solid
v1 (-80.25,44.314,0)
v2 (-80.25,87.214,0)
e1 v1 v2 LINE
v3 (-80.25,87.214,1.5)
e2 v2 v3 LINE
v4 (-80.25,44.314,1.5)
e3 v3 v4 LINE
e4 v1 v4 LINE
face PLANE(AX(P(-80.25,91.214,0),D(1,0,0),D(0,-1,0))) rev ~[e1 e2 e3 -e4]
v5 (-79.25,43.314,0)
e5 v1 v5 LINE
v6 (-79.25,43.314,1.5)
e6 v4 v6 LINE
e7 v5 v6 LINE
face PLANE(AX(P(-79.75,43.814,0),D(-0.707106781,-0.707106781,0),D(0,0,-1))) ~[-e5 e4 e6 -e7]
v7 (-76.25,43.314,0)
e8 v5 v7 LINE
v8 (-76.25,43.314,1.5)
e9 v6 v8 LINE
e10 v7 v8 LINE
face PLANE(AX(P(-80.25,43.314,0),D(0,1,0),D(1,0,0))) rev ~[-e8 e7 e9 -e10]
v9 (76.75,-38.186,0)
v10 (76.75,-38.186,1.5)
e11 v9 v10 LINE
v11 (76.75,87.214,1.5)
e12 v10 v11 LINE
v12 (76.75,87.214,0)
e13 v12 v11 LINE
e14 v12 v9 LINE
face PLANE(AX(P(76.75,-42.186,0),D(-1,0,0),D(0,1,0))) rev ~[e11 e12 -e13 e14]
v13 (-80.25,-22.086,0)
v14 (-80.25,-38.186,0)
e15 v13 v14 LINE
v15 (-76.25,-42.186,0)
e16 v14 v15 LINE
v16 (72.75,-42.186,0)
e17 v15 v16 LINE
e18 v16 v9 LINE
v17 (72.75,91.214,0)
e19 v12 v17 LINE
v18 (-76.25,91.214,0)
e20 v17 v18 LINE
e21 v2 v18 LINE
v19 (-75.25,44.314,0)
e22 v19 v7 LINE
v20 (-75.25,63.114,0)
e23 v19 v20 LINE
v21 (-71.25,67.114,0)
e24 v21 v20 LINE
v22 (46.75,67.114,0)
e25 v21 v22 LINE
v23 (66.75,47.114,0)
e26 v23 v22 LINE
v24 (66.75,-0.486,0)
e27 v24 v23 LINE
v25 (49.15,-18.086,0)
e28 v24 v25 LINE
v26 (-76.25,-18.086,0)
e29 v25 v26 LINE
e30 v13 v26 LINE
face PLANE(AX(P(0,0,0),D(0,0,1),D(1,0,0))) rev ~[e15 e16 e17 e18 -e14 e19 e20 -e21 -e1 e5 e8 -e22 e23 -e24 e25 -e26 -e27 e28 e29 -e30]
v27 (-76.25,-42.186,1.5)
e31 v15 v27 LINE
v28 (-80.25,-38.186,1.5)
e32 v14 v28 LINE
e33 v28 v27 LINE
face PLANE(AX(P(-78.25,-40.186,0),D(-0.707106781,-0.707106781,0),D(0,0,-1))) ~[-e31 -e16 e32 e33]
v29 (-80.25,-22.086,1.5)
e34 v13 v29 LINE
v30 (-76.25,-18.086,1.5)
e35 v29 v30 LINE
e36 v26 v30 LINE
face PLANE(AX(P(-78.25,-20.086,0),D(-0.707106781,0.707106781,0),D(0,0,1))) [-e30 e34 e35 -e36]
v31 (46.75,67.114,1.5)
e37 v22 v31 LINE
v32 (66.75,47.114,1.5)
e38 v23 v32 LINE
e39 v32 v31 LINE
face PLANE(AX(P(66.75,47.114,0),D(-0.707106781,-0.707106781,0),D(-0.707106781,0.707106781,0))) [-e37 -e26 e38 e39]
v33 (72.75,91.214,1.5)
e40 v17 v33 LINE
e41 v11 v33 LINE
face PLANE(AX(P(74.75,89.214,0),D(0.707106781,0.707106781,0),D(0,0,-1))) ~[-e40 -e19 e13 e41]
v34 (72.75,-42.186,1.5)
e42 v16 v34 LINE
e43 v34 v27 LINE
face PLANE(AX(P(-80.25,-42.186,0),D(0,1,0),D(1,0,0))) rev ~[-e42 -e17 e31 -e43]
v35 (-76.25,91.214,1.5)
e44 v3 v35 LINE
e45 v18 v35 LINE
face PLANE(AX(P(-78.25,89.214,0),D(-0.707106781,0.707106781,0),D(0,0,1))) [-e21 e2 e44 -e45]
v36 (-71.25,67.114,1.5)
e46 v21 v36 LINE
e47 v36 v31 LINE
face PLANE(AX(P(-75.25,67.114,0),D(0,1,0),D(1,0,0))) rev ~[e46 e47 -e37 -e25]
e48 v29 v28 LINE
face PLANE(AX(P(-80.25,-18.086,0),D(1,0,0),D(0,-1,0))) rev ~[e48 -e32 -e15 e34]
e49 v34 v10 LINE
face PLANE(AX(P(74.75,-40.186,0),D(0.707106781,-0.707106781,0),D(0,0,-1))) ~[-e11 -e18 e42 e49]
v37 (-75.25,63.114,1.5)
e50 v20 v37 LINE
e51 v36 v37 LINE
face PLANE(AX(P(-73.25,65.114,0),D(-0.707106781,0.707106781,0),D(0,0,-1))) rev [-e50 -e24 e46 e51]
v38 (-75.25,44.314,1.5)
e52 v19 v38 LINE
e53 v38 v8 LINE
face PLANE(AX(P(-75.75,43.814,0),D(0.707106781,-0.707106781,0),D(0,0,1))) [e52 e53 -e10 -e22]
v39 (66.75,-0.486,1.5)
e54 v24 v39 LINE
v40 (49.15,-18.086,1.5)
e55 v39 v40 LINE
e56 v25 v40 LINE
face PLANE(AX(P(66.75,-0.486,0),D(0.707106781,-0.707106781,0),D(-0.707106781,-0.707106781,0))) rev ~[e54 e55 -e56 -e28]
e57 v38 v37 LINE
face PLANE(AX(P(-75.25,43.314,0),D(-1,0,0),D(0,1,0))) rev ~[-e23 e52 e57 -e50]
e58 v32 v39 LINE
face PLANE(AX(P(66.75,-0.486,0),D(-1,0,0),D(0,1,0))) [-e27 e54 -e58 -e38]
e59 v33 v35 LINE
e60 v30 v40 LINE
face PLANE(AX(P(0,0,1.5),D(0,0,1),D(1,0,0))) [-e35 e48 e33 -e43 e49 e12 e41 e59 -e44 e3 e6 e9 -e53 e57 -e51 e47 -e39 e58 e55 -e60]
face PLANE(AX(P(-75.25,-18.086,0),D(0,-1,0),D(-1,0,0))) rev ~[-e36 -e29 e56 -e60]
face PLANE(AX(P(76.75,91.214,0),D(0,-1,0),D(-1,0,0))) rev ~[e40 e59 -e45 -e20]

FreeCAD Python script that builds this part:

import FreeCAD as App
import Part
import Sketcher
Q = App.Units.Quantity


def edges_at(feature, points):
    """Names of the edges that pass closest to the given points."""
    edges = feature.Shape.Edges
    near = lambda p: min(range(len(edges)), key=lambda i: edges[i].distToShape(Part.Vertex(*p))[0])
    return sorted({f"Edge{near(p) + 1}" for p in points})

doc = App.newDocument("Part")
params = doc.addObject("Spreadsheet::Sheet", "Params")
for row, (alias, value) in enumerate([
    ("sketch1_width", "157 mm"),
    ("sketch1_width2", "5 mm"),
    ("sketch1_height", "24.1 mm"),
    ("sketch1_height2", "133.4 mm"),
    ("sketch1_width3", "129.4 mm"),
    ("pad1_length", "1.5 mm"),
    ("chamfer_size", "4 mm"),
    ("chamfer2_size", "1 mm"),
], start=1):
    params.set(f"A{row}", alias)
    params.set(f"B{row}", "=" + value)
    params.setAlias(f"B{row}", alias)

body = doc.addObject("PartDesign::Body", "Body")

# Sketch on XY plane
sketch1 = body.newObject("Sketcher::SketchObject", "Sketch")
sketch1.AttachmentSupport = (doc.getObject("XY_Plane"), [""])
sketch1.MapMode = "FlatFace"
sketch1.addGeometry([
    Part.LineSegment(App.Vector(-80, -18, 0), App.Vector(-80, -42, 0)),  # 0
    Part.LineSegment(App.Vector(-80, -42, 0), App.Vector(77, -42, 0)),  # 1
    Part.LineSegment(App.Vector(77, -42, 0), App.Vector(77, 91, 0)),  # 2
    Part.LineSegment(App.Vector(77, 91, 0), App.Vector(-80, 91, 0)),  # 3
    Part.LineSegment(App.Vector(-80, 91, 0), App.Vector(-80, 43, 0)),  # 4
    Part.LineSegment(App.Vector(-80, 43, 0), App.Vector(-75, 43, 0)),  # 5
    Part.LineSegment(App.Vector(-75, 43, 0), App.Vector(-75, 67, 0)),  # 6
    Part.LineSegment(App.Vector(-75, 67, 0), App.Vector(47, 67, 0)),  # 7
    Part.LineSegment(App.Vector(47, 67, 0), App.Vector(67, 47, 0)),  # 8
    Part.LineSegment(App.Vector(67, 47, 0), App.Vector(67, 0, 0)),  # 9
    Part.LineSegment(App.Vector(67, 0, 0), App.Vector(49, -18, 0)),  # 10
    Part.LineSegment(App.Vector(49, -18, 0), App.Vector(-80, -18, 0)),  # 11
], False)
sketch1.addConstraint([
    Sketcher.Constraint("Coincident", 0, 2, 1, 1),
    Sketcher.Constraint("Coincident", 1, 2, 2, 1),
    Sketcher.Constraint("Coincident", 2, 2, 3, 1),
    Sketcher.Constraint("Coincident", 3, 2, 4, 1),
    Sketcher.Constraint("Coincident", 4, 2, 5, 1),
    Sketcher.Constraint("Coincident", 5, 2, 6, 1),
    Sketcher.Constraint("Coincident", 6, 2, 7, 1),
    Sketcher.Constraint("Coincident", 7, 2, 8, 1),
    Sketcher.Constraint("Coincident", 8, 2, 9, 1),
    Sketcher.Constraint("Coincident", 9, 2, 10, 1),
    Sketcher.Constraint("Coincident", 10, 2, 11, 1),
    Sketcher.Constraint("Coincident", 11, 2, 0, 1),
    Sketcher.Constraint("Vertical", 0),
    Sketcher.Constraint("Horizontal", 1),
    Sketcher.Constraint("Vertical", 2),
    Sketcher.Constraint("Horizontal", 3),
    Sketcher.Constraint("Vertical", 4),
    Sketcher.Constraint("Horizontal", 5),
    Sketcher.Constraint("Vertical", 6),
    Sketcher.Constraint("Horizontal", 7),
    Sketcher.Constraint("Vertical", 9),
    Sketcher.Constraint("Horizontal", 11),
    Sketcher.Constraint("Perpendicular", 8, 10),
    Sketcher.Constraint("Vertical", 0, 2, 3, 2),
    Sketcher.Constraint("DistanceX", 1, 1, 1, 2, 157.0),
    Sketcher.Constraint("DistanceX", 5, 1, 5, 2, 5.0),
    Sketcher.Constraint("Angle", 10, Q("-135 deg")),
    Sketcher.Constraint("DistanceY", 0, 2, 0, 1, 24.1),
    Sketcher.Constraint("DistanceY", 2, 1, 2, 2, 133.4),
    Sketcher.Constraint("DistanceX", 7, 2, 8, 2, 20.0),
    Sketcher.Constraint("DistanceX", 8, 2, 2, 2, 10.0),
    Sketcher.Constraint("DistanceY", 6, 2, 3, 2, 24.1),
    Sketcher.Constraint("DistanceX", 0, 2, -1, 1, 80.25),
    Sketcher.Constraint("DistanceX", 11, 2, 11, 1, 129.4),
    Sketcher.Constraint("DistanceY", 4, 2, 4, 1, 47.9),
    Sketcher.Constraint("DistanceY", 10, 2, -1, 1, 18.086),
])
sketch1.setExpression("Constraints[24]", "Params.sketch1_width")
sketch1.setExpression("Constraints[25]", "Params.sketch1_width2")
sketch1.setExpression("Constraints[27]", "Params.sketch1_height")
sketch1.setExpression("Constraints[28]", "Params.sketch1_height2")
sketch1.setExpression("Constraints[33]", "Params.sketch1_width3")
pad1 = body.newObject("PartDesign::Pad", "Pad")
pad1.Profile = sketch1
pad1.setExpression("Length", "Params.pad1_length")
doc.recompute()

chamfer = body.newObject("PartDesign::Chamfer", "Chamfer")
chamfer.Base = (pad1, edges_at(pad1, [
    (76.75, 91.214, 0.75),
    (76.75, -42.186, 0.75),
    (-80.25, -18.086, 0.75),
    (-80.25, -42.186, 0.75),
    (-80.25, 91.214, 0.75),
    (-75.25, 67.114, 0.75),
]))
chamfer.setExpression("Size", "Params.chamfer_size")
doc.recompute()

chamfer2 = body.newObject("PartDesign::Chamfer", "Chamfer001")
chamfer2.Base = (chamfer, edges_at(chamfer, [(-80.25, 43.314, 0.75), (-75.25, 43.314, 0.75)]))
chamfer2.setExpression("Size", "Params.chamfer2_size")

doc.recompute()
